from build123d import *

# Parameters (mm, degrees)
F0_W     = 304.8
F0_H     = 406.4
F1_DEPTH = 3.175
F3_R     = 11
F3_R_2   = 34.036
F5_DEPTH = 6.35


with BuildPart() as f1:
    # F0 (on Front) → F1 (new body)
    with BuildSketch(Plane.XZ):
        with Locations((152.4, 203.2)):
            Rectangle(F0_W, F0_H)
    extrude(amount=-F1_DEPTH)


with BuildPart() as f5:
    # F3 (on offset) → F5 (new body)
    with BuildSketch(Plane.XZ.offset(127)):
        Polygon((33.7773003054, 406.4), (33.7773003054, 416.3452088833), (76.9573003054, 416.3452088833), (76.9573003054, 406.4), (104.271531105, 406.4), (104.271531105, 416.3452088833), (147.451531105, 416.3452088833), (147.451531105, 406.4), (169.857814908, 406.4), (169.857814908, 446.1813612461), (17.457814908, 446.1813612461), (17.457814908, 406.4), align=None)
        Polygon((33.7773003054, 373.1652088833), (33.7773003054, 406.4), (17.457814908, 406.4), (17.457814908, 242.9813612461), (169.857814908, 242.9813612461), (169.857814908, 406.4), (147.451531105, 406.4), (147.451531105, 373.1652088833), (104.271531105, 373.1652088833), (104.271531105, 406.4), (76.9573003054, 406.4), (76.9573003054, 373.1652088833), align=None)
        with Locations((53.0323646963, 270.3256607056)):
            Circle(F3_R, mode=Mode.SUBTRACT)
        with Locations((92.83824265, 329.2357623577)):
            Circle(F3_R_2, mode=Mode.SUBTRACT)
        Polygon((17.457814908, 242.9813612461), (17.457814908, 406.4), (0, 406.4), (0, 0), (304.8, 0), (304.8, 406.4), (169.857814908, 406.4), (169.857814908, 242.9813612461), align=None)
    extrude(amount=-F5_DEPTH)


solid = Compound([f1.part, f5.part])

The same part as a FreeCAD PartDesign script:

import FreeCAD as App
import Part
import Sketcher

V = App.Vector
Q = App.Units.Quantity


def add_polygon(sketch, points):
    """Adds a closed chain of lines whose ends are joined by coincident constraints."""
    first, n = sketch.GeometryCount, len(points)
    for a, b in zip(points, points[1:] + points[:1]):
        sketch.addGeometry(Part.LineSegment(App.Vector(*a, 0), App.Vector(*b, 0)), False)
    for i in range(n):
        sketch.addConstraint(Sketcher.Constraint("Coincident", first + i, 2, first + (i + 1) % n, 1))

doc = App.newDocument("Part")
body = doc.addObject("PartDesign::Body", "Body")

sketch1 = body.newObject("Sketcher::SketchObject", "Sketch")
sketch1.AttachmentSupport = (doc.getObject("XZ_Plane"), [""])
sketch1.MapMode = "FlatFace"
add_polygon(sketch1, [(0, 406.4), (0, 0), (304.8, 0), (304.8, 406.4)])
sketch1.addConstraint([
    Sketcher.Constraint("Vertical", 0),
    Sketcher.Constraint("Horizontal", 1),
    Sketcher.Constraint("Vertical", 2),
    Sketcher.Constraint("Horizontal", 3),
    Sketcher.Constraint("Coincident", 0, 2, -1, 1),
    Sketcher.Constraint("DistanceX", 1, 1, 1, 2, Q("12 in")),
    Sketcher.Constraint("DistanceY", 0, 2, 0, 1, Q("16 in")),
])
pad1 = body.newObject("PartDesign::Pad", "Pad")
pad1.Profile = sketch1
pad1.Length = Q("0.125 in")
pad1.Reversed = True
body2 = doc.addObject("PartDesign::Body", "Body001")

sketch2 = body2.newObject("Sketcher::SketchObject", "Sketch001")
sketch2.AttachmentSupport = (doc.getObject("XZ_Plane001"), [""])
sketch2.MapMode = "FlatFace"
sketch2.AttachmentOffset = App.Placement(V(0, 0, 5 * 25.4), App.Rotation())
add_polygon(sketch2, [(169.857815, 446.181361), (17.457815, 446.181361), (17.457815, 406.4), (0, 406.4), (0, 0), (304.8, 0), (304.8, 406.4), (169.857815, 406.4)])
sketch2.addGeometry(Part.Circle(V(53.032365, 270.325661, 0), V(0, 0, 1), 11), False)
sketch2.addGeometry(Part.Circle(V(92.838243, 329.235762, 0), V(0, 0, 1), 34.036), False)
add_polygon(sketch2, [(33.7773, 416.345209), (76.9573, 416.345209), (76.9573, 373.165209), (33.7773, 373.165209)])
add_polygon(sketch2, [(104.271531, 416.345209), (147.451531, 416.345209), (147.451531, 373.165209), (104.271531, 373.165209)])
sketch2.addConstraint([
    Sketcher.Constraint("Horizontal", 0),
    Sketcher.Constraint("Vertical", 1),
    Sketcher.Constraint("Horizontal", 2),
    Sketcher.Constraint("Vertical", 3),
    Sketcher.Constraint("Horizontal", 4),
    Sketcher.Constraint("Vertical", 5),
    Sketcher.Constraint("Horizontal", 6),
    Sketcher.Constraint("Vertical", 7),
    Sketcher.Constraint("Horizontal", 10),
    Sketcher.Constraint("Vertical", 11),
    Sketcher.Constraint("Horizontal", 12),
    Sketcher.Constraint("Vertical", 13),
    Sketcher.Constraint("Horizontal", 14),
    Sketcher.Constraint("Vertical", 15),
    Sketcher.Constraint("Horizontal", 16),
    Sketcher.Constraint("Vertical", 17),
    Sketcher.Constraint("Coincident", 3, 2, -1, 1),
    Sketcher.Constraint("Horizontal", 2, 2, 5, 2),
    Sketcher.Constraint("Horizontal", 13, 2, 14, 2),
    Sketcher.Constraint("Horizontal", 12, 2, 15, 2),
    Sketcher.Constraint("Equal", 12, 14),
    Sketcher.Constraint("Equal", 16, 11),
    Sketcher.Constraint("Diameter", 9, Q("2.68 in")),
    Sketcher.Constraint("DistanceX", 0, 2, 0, 1, Q("6 in")),
    Sketcher.Constraint("DistanceX", 4, 1, 4, 2, Q("12 in")),
    Sketcher.Constraint("DistanceY", 3, 2, 3, 1, Q("16 in")),
    Sketcher.Constraint("DistanceX", 10, 1, 10, 2, Q("1.7 in")),
    Sketcher.Constraint("Diameter", 8, Q("22 mm")),
    Sketcher.Constraint("DistanceY", 1, 2, 1, 1, Q("39.781361 mm")),
    Sketcher.Constraint("DistanceX", -1, 1, 10, 2, Q("76.9573 mm")),
    Sketcher.Constraint("DistanceY", 8, 3, 9, 3, Q("58.910102 mm")),
    Sketcher.Constraint("DistanceY", 9, 3, 0, 2, Q("116.945599 mm")),
    Sketcher.Constraint("DistanceX", 2, 2, 2, 1, Q("17.457815 mm")),
    Sketcher.Constraint("DistanceY", -1, 1, 10, 2, Q("416.345209 mm")),
    Sketcher.Constraint("DistanceX", -1, 1, 14, 2, Q("147.451531 mm")),
    Sketcher.Constraint("DistanceX", 0, 2, 8, 3, Q("35.57455 mm")),
    Sketcher.Constraint("DistanceX", 9, 3, 14, 2, Q("54.613288 mm")),
])
pad2 = body2.newObject("PartDesign::Pad", "Pad001")
pad2.Profile = sketch2
pad2.Length = Q("0.25 in")
pad2.Reversed = True

doc.recompute()
